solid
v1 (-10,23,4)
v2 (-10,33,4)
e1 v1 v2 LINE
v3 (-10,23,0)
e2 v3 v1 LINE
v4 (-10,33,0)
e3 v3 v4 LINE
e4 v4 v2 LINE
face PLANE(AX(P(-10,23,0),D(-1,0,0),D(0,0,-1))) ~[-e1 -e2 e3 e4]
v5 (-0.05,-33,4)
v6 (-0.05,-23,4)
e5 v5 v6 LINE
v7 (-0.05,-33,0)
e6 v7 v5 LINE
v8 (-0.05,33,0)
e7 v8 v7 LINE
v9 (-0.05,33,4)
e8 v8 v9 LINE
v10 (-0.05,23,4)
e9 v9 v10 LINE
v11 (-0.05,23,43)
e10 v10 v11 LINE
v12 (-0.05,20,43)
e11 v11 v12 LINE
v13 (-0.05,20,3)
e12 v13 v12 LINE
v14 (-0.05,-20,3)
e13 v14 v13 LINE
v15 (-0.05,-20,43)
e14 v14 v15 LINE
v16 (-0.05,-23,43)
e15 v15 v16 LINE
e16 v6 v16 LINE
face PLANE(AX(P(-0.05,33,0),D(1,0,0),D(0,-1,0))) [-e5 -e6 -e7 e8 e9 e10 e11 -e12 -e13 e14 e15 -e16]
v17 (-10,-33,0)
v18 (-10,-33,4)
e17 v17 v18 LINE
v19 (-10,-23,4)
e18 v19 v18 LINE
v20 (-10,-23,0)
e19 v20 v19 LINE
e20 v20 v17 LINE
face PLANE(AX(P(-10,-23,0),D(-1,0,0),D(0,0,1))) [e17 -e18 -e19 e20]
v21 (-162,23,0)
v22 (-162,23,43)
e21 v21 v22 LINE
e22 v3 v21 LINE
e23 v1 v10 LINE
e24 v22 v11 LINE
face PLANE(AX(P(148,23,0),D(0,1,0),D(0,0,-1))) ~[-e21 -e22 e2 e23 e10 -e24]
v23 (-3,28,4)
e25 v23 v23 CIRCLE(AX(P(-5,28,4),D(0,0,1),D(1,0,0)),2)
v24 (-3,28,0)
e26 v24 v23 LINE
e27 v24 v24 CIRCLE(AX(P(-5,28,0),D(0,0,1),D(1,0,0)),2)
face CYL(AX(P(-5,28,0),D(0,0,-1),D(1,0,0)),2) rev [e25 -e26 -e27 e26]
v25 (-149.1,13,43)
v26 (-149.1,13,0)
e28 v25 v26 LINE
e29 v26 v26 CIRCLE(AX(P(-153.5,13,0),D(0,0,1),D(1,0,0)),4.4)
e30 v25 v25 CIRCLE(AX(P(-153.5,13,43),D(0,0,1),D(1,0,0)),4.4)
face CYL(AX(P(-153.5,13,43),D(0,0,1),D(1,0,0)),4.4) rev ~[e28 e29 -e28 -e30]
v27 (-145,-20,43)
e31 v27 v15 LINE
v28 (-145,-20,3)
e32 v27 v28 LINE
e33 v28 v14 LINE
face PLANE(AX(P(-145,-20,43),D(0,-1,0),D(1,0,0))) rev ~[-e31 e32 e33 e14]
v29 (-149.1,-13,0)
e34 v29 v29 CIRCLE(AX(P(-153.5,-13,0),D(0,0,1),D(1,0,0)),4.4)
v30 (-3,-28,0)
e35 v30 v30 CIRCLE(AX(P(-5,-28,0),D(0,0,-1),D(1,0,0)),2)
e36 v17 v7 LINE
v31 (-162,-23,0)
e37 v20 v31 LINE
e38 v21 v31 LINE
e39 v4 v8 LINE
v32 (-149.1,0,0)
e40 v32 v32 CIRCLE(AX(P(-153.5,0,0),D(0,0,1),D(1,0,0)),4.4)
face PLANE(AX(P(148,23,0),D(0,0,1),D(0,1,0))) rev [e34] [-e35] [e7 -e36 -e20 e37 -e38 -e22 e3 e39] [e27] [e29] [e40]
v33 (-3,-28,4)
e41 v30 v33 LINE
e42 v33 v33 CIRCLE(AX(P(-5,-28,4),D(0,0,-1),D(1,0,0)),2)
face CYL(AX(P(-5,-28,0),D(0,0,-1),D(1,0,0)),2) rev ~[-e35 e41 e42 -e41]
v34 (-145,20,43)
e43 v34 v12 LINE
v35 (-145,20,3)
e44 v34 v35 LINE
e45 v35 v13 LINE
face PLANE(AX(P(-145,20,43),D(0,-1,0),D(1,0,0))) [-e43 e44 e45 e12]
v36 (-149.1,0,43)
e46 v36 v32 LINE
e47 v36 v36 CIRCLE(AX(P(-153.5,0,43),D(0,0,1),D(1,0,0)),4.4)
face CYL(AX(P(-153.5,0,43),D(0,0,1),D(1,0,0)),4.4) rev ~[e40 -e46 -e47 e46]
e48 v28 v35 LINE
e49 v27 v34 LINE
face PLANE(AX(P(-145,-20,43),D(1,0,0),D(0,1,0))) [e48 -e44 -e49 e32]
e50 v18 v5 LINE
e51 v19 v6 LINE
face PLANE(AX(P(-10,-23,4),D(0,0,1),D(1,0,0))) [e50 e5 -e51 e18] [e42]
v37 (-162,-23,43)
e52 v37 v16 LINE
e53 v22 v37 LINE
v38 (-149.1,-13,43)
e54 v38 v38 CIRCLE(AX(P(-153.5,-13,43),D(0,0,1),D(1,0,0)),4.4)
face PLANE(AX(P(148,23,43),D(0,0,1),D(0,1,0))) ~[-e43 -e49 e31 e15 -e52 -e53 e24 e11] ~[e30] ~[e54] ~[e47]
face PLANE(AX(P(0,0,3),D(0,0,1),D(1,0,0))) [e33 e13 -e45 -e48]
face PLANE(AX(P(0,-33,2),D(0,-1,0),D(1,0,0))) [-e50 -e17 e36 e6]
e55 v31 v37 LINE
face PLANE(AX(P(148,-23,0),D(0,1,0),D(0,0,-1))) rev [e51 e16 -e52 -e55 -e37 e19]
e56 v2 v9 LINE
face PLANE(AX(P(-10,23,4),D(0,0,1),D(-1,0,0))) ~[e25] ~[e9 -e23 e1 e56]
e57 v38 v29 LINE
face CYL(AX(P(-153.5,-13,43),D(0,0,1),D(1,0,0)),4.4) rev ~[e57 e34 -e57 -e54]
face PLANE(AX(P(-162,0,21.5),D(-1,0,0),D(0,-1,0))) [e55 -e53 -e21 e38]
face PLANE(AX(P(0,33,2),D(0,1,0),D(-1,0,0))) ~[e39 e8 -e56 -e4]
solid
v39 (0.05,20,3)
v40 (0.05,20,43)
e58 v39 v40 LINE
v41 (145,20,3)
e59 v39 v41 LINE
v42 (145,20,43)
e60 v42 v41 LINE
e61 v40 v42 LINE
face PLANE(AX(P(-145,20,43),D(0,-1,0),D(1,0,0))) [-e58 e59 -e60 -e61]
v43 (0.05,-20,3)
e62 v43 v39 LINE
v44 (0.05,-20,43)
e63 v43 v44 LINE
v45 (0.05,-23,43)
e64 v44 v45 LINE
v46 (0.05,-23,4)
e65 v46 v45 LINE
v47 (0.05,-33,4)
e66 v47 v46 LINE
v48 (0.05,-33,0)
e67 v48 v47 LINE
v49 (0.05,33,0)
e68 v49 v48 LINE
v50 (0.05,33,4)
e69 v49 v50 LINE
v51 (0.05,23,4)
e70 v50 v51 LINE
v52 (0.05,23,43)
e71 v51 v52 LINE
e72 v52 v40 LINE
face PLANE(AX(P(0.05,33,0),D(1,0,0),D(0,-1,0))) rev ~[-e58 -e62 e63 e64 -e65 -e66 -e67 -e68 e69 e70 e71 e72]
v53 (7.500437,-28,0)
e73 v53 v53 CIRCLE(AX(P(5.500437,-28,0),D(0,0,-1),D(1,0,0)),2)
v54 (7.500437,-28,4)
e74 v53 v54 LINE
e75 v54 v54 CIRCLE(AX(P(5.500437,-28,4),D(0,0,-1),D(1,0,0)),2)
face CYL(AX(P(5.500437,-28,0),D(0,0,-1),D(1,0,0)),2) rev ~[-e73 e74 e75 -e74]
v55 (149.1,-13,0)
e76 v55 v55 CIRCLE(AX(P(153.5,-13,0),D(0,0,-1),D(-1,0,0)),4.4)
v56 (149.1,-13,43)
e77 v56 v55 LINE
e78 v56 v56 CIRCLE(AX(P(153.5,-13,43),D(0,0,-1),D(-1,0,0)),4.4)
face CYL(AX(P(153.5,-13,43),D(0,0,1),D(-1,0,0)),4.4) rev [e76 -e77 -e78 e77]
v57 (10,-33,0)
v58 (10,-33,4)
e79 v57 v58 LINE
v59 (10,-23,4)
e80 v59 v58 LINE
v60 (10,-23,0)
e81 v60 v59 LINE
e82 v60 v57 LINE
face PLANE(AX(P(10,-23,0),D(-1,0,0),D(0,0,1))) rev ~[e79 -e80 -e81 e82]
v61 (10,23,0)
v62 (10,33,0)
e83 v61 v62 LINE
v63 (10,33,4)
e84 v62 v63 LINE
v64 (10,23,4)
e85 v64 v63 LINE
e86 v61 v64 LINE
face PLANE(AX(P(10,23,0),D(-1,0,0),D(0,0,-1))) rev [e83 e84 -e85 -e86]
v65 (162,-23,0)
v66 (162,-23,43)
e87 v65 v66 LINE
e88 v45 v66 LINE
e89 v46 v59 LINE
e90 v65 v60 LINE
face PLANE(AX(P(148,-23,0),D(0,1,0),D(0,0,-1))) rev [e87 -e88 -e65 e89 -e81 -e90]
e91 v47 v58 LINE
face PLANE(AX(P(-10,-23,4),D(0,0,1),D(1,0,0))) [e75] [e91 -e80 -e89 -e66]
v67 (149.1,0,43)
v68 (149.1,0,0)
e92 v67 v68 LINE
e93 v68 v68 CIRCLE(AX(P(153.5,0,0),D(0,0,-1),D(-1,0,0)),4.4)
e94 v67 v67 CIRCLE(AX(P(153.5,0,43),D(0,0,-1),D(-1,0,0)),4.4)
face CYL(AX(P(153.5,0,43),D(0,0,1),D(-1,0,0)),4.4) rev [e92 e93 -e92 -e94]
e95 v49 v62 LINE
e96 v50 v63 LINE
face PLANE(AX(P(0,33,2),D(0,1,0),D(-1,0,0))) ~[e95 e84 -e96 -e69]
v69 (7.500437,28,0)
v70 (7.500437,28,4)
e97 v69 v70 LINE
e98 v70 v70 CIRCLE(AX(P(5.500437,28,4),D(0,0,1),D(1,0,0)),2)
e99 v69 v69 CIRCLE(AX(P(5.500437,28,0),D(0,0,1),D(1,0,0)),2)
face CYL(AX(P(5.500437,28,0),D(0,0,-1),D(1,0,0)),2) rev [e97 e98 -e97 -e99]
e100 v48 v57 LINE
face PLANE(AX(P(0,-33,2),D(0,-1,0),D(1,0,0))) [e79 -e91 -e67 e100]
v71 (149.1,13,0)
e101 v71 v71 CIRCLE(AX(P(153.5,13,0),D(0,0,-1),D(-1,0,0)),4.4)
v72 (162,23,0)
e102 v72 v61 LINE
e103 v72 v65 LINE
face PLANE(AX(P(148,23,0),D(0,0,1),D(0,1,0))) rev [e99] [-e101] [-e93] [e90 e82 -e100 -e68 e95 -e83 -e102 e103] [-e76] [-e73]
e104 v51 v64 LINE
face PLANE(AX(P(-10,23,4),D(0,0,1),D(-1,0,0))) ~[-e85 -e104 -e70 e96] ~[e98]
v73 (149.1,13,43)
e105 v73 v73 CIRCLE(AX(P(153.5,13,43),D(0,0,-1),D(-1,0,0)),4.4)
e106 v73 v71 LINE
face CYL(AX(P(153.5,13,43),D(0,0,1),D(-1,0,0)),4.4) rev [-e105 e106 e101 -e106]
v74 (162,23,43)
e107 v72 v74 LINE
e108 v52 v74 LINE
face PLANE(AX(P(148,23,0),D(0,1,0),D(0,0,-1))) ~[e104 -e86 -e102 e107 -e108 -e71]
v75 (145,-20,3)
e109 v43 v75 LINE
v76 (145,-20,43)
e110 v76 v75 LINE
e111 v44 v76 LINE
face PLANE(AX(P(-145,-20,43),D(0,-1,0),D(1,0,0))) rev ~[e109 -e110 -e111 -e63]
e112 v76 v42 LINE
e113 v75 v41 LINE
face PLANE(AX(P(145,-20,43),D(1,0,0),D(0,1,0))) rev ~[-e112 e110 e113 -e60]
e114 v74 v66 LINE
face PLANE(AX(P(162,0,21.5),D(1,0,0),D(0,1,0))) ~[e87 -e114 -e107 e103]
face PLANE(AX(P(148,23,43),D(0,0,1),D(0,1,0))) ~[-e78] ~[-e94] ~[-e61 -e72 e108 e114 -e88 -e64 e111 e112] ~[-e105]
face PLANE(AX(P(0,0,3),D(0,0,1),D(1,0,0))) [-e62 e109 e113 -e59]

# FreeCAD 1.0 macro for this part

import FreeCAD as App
import Part
import Sketcher

V = App.Vector
Q = App.Units.Quantity

doc = App.newDocument("Part")
body = doc.addObject("PartDesign::Body", "Body")

# Sketch on XY plane
sketch1 = doc.addObject("Sketcher::SketchObject", "Sketch")
body.addObject(sketch1)
sketch1.AttachmentSupport = (doc.XY_Plane, [""])
sketch1.MapMode = "FlatFace"
sketch1.addGeometry(Part.LineSegment(V(-148, 23, 0), V(-148, -23, 0)), False)
sketch1.addGeometry(Part.LineSegment(V(-148, -23, 0), V(148, -23, 0)), False)
sketch1.addGeometry(Part.LineSegment(V(148, -23, 0), V(148, 23, 0)), False)
sketch1.addGeometry(Part.LineSegment(V(148, 23, 0), V(-148, 23, 0)), False)
sketch1.addConstraint(Sketcher.Constraint("Coincident", 0, 2, 1, 1))
sketch1.addConstraint(Sketcher.Constraint("Coincident", 1, 2, 2, 1))
sketch1.addConstraint(Sketcher.Constraint("Coincident", 2, 2, 3, 1))
sketch1.addConstraint(Sketcher.Constraint("Coincident", 3, 2, 0, 1))
sketch1.addConstraint(Sketcher.Constraint("Vertical", 0))
sketch1.addConstraint(Sketcher.Constraint("Horizontal", 1))
sketch1.addConstraint(Sketcher.Constraint("Vertical", 2))
sketch1.addConstraint(Sketcher.Constraint("Horizontal", 3))
sketch1.addConstraint(Sketcher.Constraint("Symmetric", 0, 2, 2, 2, -1, 1))
sketch1.addConstraint(Sketcher.Constraint("DistanceX", 1, 1, 1, 2, Q("296 mm")))
sketch1.addConstraint(Sketcher.Constraint("DistanceY", 0, 2, 0, 1, Q("46 mm")))
pad1 = doc.addObject("PartDesign::Pad", "Pad")
body.addObject(pad1)
pad1.Profile = sketch1
pad1.Length = 43

# Sketch on XY plane
sketch2 = doc.addObject("Sketcher::SketchObject", "Sketch001")
body.addObject(sketch2)
sketch2.AttachmentSupport = (doc.XY_Plane, [""])
sketch2.MapMode = "FlatFace"
sketch2.AttachmentOffset = App.Placement(V(0, 0, 43), App.Rotation())
sketch2.addGeometry(Part.LineSegment(V(-145, 20, 0), V(-145, -20, 0)), False)
sketch2.addGeometry(Part.LineSegment(V(-145, -20, 0), V(145, -20, 0)), False)
sketch2.addGeometry(Part.LineSegment(V(145, -20, 0), V(145, 20, 0)), False)
sketch2.addGeometry(Part.LineSegment(V(145, 20, 0), V(-145, 20, 0)), False)
sketch2.addConstraint(Sketcher.Constraint("Coincident", 0, 2, 1, 1))
sketch2.addConstraint(Sketcher.Constraint("Coincident", 1, 2, 2, 1))
sketch2.addConstraint(Sketcher.Constraint("Coincident", 2, 2, 3, 1))
sketch2.addConstraint(Sketcher.Constraint("Coincident", 3, 2, 0, 1))
sketch2.addConstraint(Sketcher.Constraint("Vertical", 0))
sketch2.addConstraint(Sketcher.Constraint("Horizontal", 1))
sketch2.addConstraint(Sketcher.Constraint("Vertical", 2))
sketch2.addConstraint(Sketcher.Constraint("Horizontal", 3))
sketch2.addConstraint(Sketcher.Constraint("Symmetric", 0, 2, 2, 2, -1, 1))
sketch2.addConstraint(Sketcher.Constraint("DistanceX", 1, 1, 1, 2, Q("290 mm")))
sketch2.addConstraint(Sketcher.Constraint("DistanceY", 0, 2, 0, 1, Q("40 mm")))
pocket1 = doc.addObject("PartDesign::Pocket", "Pocket")
body.addObject(pocket1)
pocket1.Profile = sketch2
pocket1.Length = 40

# Sketch on YZ plane
sketch3 = doc.addObject("Sketcher::SketchObject", "Sketch002")
body.addObject(sketch3)
sketch3.AttachmentSupport = (doc.YZ_Plane, [""])
sketch3.MapMode = "FlatFace"
sketch3.AttachmentOffset = App.Placement(V(0, 0, -148), App.Rotation())
sketch3.addGeometry(Part.LineSegment(V(23, 43, 0), V(23, 0, 0)), False)
sketch3.addGeometry(Part.LineSegment(V(23, 0, 0), V(-23, 0, 0)), False)
sketch3.addGeometry(Part.LineSegment(V(-23, 0, 0), V(-23, 43, 0)), False)
sketch3.addGeometry(Part.LineSegment(V(-23, 43, 0), V(23, 43, 0)), False)
sketch3.addConstraint(Sketcher.Constraint("Coincident", 0, 2, 1, 1))
sketch3.addConstraint(Sketcher.Constraint("Coincident", 1, 2, 2, 1))
sketch3.addConstraint(Sketcher.Constraint("Coincident", 2, 2, 3, 1))
sketch3.addConstraint(Sketcher.Constraint("Coincident", 3, 2, 0, 1))
sketch3.addConstraint(Sketcher.Constraint("Vertical", 0))
sketch3.addConstraint(Sketcher.Constraint("Horizontal", 1))
sketch3.addConstraint(Sketcher.Constraint("Vertical", 2))
sketch3.addConstraint(Sketcher.Constraint("Horizontal", 3))
sketch3.addConstraint(Sketcher.Constraint("Symmetric", 0, 2, 1, 2, -1, 1))
sketch3.addConstraint(Sketcher.Constraint("DistanceX", 1, 2, 1, 1, Q("46 mm")))
sketch3.addConstraint(Sketcher.Constraint("DistanceY", 0, 2, 0, 1, Q("43 mm")))
pad2 = doc.addObject("PartDesign::Pad", "Pad001")
body.addObject(pad2)
pad2.Profile = sketch3
pad2.Length = 14
pad2.Reversed = True

# Sketch on XY plane
sketch4 = doc.addObject("Sketcher::SketchObject", "Sketch003")
body.addObject(sketch4)
sketch4.AttachmentSupport = (doc.XY_Plane, [""])
sketch4.MapMode = "FlatFace"
sketch4.AttachmentOffset = App.Placement(V(0, 0, 43), App.Rotation())
sketch4.addGeometry(Part.Circle(V(-153.5, 0, 0), V(0, 0, 1), 4.4), False)
sketch4.addGeometry(Part.Circle(V(-153.5, 13, 0), V(0, 0, 1), 4.4), False)
sketch4.addGeometry(Part.Circle(V(-153.5, -13, 0), V(0, 0, 1), 4.4), False)
sketch4.addConstraint(Sketcher.Constraint("Equal", 0, 1))
sketch4.addConstraint(Sketcher.Constraint("Equal", 1, 2))
sketch4.addConstraint(Sketcher.Constraint("Symmetric", 1, 3, 2, 3, -1))
sketch4.addConstraint(Sketcher.Constraint("PointOnObject", 0, 3, -1))
sketch4.addConstraint(Sketcher.Constraint("Vertical", 0, 3, 1, 3))
sketch4.addConstraint(Sketcher.Constraint("Diameter", 0, Q("8.8 mm")))
sketch4.addConstraint(Sketcher.Constraint("DistanceY", -1, 1, 1, 3, Q("13 mm")))
sketch4.addConstraint(Sketcher.Constraint("DistanceX", 0, 3, -1, 1, Q("153.5 mm")))
pocket2 = doc.addObject("PartDesign::Pocket", "Pocket001")
body.addObject(pocket2)
pocket2.Profile = sketch4
pocket2.Length = 43
body2 = doc.addObject("PartDesign::Body", "Body001")
doc.recompute()

body2.BaseFeature = body
doc.recompute()

mirroring = doc.addObject("Part::Mirroring", "Mirroring")
mirroring.Source = body
mirroring.Base = V(0, 0, 0)
mirroring.Normal = V(1, 0, 0)
body3 = doc.addObject("PartDesign::Body", "Body002")
body3.BaseFeature = mirroring
boolean = doc.addObject("PartDesign::Boolean", "Boolean")
body2.addObject(boolean)
boolean.Type = "Fuse"
boolean.addObjects([body3])
doc.recompute()

# Sketch on XZ plane
sketch5 = doc.addObject("Sketcher::SketchObject", "Sketch004")
body2.addObject(sketch5)
sketch5.AttachmentSupport = (doc.getObject("XZ_Plane001"), [""])
sketch5.MapMode = "FlatFace"
sketch5.AttachmentOffset = App.Placement(V(0, 0, 23), App.Rotation())
sketch5.addGeometry(Part.LineSegment(V(-10, 4, 0), V(-10, 0, 0)), False)
sketch5.addGeometry(Part.LineSegment(V(-10, 0, 0), V(10, 0, 0)), False)
sketch5.addGeometry(Part.LineSegment(V(10, 0, 0), V(10, 4, 0)), False)
sketch5.addGeometry(Part.LineSegment(V(10, 4, 0), V(-10, 4, 0)), False)
sketch5.addConstraint(Sketcher.Constraint("Coincident", 0, 2, 1, 1))
sketch5.addConstraint(Sketcher.Constraint("Coincident", 1, 2, 2, 1))
sketch5.addConstraint(Sketcher.Constraint("Coincident", 2, 2, 3, 1))
sketch5.addConstraint(Sketcher.Constraint("Coincident", 3, 2, 0, 1))
sketch5.addConstraint(Sketcher.Constraint("Vertical", 0))
sketch5.addConstraint(Sketcher.Constraint("Horizontal", 1))
sketch5.addConstraint(Sketcher.Constraint("Vertical", 2))
sketch5.addConstraint(Sketcher.Constraint("Horizontal", 3))
sketch5.addConstraint(Sketcher.Constraint("Symmetric", 0, 2, 1, 2, -1, 1))
sketch5.addConstraint(Sketcher.Constraint("DistanceX", 1, 1, 1, 2, Q("20 mm")))
sketch5.addConstraint(Sketcher.Constraint("DistanceY", 0, 2, 0, 1, Q("4 mm")))
pad3 = doc.addObject("PartDesign::Pad", "Pad002")
body2.addObject(pad3)
pad3.Profile = sketch5
pad3.Length = 10

# Sketch on XY plane
sketch6 = doc.addObject("Sketcher::SketchObject", "Sketch005")
body2.addObject(sketch6)
sketch6.AttachmentSupport = (doc.getObject("XY_Plane001"), [""])
sketch6.MapMode = "FlatFace"
sketch6.addGeometry(Part.Circle(V(-5, -28, 0), V(0, 0, 1), 2), False)
sketch6.addGeometry(Part.Circle(V(5.500437, -28, 0), V(0, 0, 1), 2), False)
sketch6.addConstraint(Sketcher.Constraint("Equal", 0, 1))
sketch6.addConstraint(Sketcher.Constraint("Horizontal", 0, 3, 1, 3))
sketch6.addConstraint(Sketcher.Constraint("Diameter", 0, Q("4 mm")))
sketch6.addConstraint(Sketcher.Constraint("DistanceX", 0, 3, -1, 1, Q("5 mm")))
sketch6.addConstraint(Sketcher.Constraint("DistanceY", 0, 3, -1, 1, Q("28 mm")))
sketch6.addConstraint(Sketcher.Constraint("DistanceX", -1, 1, 1, 3, Q("5.500437 mm")))
pocket3 = doc.addObject("PartDesign::Pocket", "Pocket002")
body2.addObject(pocket3)
pocket3.Profile = sketch6
pocket3.Length = 4
pocket3.Reversed = True
body4 = doc.addObject("PartDesign::Body", "Body003")
body4.AllowCompound = True
doc.recompute()

body4.BaseFeature = body2
doc.recompute()

mirroring2 = doc.addObject("Part::Mirroring", "Mirroring001")
mirroring2.Source = body2
mirroring2.Base = V(0, 0, 0)
mirroring2.Normal = V(0, -1, 0)
body5 = doc.addObject("PartDesign::Body", "Body004")
body5.BaseFeature = mirroring2
boolean2 = doc.addObject("PartDesign::Boolean", "Boolean001")
body4.addObject(boolean2)
boolean2.Type = "Fuse"
boolean2.addObjects([body5])
doc.recompute()

# Sketch on XY plane
sketch7 = doc.addObject("Sketcher::SketchObject", "Sketch006")
body4.addObject(sketch7)
sketch7.AttachmentSupport = (doc.getObject("XY_Plane003"), [""])
sketch7.MapMode = "FlatFace"
sketch7.addGeometry(Part.LineSegment(V(-0.05, -33, 0), V(-0.05, 33, 0)), False)
sketch7.addGeometry(Part.LineSegment(V(-0.05, 33, 0), V(0.05, 33, 0)), False)
sketch7.addGeometry(Part.LineSegment(V(0.05, 33, 0), V(0.05, -33, 0)), False)
sketch7.addGeometry(Part.LineSegment(V(0.05, -33, 0), V(-0.05, -33, 0)), False)
sketch7.addConstraint(Sketcher.Constraint("Coincident", 0, 2, 1, 1))
sketch7.addConstraint(Sketcher.Constraint("Coincident", 1, 2, 2, 1))
sketch7.addConstraint(Sketcher.Constraint("Coincident", 2, 2, 3, 1))
sketch7.addConstraint(Sketcher.Constraint("Coincident", 3, 2, 0, 1))
sketch7.addConstraint(Sketcher.Constraint("Vertical", 0))
sketch7.addConstraint(Sketcher.Constraint("Horizontal", 1))
sketch7.addConstraint(Sketcher.Constraint("Vertical", 2))
sketch7.addConstraint(Sketcher.Constraint("Horizontal", 3))
sketch7.addConstraint(Sketcher.Constraint("Symmetric", 0, 2, 2, 2, -1, 1))
sketch7.addConstraint(Sketcher.Constraint("DistanceY", 0, 1, 0, 2, Q("66 mm")))
sketch7.addConstraint(Sketcher.Constraint("DistanceX", 1, 1, 1, 2, Q("0.1 mm")))
pocket4 = doc.addObject("PartDesign::Pocket", "Pocket003")
body4.addObject(pocket4)
pocket4.Profile = sketch7
pocket4.Length = 43
pocket4.Reversed = True
mirroring.Visibility = False
mirroring2.Visibility = False

doc.recompute()
